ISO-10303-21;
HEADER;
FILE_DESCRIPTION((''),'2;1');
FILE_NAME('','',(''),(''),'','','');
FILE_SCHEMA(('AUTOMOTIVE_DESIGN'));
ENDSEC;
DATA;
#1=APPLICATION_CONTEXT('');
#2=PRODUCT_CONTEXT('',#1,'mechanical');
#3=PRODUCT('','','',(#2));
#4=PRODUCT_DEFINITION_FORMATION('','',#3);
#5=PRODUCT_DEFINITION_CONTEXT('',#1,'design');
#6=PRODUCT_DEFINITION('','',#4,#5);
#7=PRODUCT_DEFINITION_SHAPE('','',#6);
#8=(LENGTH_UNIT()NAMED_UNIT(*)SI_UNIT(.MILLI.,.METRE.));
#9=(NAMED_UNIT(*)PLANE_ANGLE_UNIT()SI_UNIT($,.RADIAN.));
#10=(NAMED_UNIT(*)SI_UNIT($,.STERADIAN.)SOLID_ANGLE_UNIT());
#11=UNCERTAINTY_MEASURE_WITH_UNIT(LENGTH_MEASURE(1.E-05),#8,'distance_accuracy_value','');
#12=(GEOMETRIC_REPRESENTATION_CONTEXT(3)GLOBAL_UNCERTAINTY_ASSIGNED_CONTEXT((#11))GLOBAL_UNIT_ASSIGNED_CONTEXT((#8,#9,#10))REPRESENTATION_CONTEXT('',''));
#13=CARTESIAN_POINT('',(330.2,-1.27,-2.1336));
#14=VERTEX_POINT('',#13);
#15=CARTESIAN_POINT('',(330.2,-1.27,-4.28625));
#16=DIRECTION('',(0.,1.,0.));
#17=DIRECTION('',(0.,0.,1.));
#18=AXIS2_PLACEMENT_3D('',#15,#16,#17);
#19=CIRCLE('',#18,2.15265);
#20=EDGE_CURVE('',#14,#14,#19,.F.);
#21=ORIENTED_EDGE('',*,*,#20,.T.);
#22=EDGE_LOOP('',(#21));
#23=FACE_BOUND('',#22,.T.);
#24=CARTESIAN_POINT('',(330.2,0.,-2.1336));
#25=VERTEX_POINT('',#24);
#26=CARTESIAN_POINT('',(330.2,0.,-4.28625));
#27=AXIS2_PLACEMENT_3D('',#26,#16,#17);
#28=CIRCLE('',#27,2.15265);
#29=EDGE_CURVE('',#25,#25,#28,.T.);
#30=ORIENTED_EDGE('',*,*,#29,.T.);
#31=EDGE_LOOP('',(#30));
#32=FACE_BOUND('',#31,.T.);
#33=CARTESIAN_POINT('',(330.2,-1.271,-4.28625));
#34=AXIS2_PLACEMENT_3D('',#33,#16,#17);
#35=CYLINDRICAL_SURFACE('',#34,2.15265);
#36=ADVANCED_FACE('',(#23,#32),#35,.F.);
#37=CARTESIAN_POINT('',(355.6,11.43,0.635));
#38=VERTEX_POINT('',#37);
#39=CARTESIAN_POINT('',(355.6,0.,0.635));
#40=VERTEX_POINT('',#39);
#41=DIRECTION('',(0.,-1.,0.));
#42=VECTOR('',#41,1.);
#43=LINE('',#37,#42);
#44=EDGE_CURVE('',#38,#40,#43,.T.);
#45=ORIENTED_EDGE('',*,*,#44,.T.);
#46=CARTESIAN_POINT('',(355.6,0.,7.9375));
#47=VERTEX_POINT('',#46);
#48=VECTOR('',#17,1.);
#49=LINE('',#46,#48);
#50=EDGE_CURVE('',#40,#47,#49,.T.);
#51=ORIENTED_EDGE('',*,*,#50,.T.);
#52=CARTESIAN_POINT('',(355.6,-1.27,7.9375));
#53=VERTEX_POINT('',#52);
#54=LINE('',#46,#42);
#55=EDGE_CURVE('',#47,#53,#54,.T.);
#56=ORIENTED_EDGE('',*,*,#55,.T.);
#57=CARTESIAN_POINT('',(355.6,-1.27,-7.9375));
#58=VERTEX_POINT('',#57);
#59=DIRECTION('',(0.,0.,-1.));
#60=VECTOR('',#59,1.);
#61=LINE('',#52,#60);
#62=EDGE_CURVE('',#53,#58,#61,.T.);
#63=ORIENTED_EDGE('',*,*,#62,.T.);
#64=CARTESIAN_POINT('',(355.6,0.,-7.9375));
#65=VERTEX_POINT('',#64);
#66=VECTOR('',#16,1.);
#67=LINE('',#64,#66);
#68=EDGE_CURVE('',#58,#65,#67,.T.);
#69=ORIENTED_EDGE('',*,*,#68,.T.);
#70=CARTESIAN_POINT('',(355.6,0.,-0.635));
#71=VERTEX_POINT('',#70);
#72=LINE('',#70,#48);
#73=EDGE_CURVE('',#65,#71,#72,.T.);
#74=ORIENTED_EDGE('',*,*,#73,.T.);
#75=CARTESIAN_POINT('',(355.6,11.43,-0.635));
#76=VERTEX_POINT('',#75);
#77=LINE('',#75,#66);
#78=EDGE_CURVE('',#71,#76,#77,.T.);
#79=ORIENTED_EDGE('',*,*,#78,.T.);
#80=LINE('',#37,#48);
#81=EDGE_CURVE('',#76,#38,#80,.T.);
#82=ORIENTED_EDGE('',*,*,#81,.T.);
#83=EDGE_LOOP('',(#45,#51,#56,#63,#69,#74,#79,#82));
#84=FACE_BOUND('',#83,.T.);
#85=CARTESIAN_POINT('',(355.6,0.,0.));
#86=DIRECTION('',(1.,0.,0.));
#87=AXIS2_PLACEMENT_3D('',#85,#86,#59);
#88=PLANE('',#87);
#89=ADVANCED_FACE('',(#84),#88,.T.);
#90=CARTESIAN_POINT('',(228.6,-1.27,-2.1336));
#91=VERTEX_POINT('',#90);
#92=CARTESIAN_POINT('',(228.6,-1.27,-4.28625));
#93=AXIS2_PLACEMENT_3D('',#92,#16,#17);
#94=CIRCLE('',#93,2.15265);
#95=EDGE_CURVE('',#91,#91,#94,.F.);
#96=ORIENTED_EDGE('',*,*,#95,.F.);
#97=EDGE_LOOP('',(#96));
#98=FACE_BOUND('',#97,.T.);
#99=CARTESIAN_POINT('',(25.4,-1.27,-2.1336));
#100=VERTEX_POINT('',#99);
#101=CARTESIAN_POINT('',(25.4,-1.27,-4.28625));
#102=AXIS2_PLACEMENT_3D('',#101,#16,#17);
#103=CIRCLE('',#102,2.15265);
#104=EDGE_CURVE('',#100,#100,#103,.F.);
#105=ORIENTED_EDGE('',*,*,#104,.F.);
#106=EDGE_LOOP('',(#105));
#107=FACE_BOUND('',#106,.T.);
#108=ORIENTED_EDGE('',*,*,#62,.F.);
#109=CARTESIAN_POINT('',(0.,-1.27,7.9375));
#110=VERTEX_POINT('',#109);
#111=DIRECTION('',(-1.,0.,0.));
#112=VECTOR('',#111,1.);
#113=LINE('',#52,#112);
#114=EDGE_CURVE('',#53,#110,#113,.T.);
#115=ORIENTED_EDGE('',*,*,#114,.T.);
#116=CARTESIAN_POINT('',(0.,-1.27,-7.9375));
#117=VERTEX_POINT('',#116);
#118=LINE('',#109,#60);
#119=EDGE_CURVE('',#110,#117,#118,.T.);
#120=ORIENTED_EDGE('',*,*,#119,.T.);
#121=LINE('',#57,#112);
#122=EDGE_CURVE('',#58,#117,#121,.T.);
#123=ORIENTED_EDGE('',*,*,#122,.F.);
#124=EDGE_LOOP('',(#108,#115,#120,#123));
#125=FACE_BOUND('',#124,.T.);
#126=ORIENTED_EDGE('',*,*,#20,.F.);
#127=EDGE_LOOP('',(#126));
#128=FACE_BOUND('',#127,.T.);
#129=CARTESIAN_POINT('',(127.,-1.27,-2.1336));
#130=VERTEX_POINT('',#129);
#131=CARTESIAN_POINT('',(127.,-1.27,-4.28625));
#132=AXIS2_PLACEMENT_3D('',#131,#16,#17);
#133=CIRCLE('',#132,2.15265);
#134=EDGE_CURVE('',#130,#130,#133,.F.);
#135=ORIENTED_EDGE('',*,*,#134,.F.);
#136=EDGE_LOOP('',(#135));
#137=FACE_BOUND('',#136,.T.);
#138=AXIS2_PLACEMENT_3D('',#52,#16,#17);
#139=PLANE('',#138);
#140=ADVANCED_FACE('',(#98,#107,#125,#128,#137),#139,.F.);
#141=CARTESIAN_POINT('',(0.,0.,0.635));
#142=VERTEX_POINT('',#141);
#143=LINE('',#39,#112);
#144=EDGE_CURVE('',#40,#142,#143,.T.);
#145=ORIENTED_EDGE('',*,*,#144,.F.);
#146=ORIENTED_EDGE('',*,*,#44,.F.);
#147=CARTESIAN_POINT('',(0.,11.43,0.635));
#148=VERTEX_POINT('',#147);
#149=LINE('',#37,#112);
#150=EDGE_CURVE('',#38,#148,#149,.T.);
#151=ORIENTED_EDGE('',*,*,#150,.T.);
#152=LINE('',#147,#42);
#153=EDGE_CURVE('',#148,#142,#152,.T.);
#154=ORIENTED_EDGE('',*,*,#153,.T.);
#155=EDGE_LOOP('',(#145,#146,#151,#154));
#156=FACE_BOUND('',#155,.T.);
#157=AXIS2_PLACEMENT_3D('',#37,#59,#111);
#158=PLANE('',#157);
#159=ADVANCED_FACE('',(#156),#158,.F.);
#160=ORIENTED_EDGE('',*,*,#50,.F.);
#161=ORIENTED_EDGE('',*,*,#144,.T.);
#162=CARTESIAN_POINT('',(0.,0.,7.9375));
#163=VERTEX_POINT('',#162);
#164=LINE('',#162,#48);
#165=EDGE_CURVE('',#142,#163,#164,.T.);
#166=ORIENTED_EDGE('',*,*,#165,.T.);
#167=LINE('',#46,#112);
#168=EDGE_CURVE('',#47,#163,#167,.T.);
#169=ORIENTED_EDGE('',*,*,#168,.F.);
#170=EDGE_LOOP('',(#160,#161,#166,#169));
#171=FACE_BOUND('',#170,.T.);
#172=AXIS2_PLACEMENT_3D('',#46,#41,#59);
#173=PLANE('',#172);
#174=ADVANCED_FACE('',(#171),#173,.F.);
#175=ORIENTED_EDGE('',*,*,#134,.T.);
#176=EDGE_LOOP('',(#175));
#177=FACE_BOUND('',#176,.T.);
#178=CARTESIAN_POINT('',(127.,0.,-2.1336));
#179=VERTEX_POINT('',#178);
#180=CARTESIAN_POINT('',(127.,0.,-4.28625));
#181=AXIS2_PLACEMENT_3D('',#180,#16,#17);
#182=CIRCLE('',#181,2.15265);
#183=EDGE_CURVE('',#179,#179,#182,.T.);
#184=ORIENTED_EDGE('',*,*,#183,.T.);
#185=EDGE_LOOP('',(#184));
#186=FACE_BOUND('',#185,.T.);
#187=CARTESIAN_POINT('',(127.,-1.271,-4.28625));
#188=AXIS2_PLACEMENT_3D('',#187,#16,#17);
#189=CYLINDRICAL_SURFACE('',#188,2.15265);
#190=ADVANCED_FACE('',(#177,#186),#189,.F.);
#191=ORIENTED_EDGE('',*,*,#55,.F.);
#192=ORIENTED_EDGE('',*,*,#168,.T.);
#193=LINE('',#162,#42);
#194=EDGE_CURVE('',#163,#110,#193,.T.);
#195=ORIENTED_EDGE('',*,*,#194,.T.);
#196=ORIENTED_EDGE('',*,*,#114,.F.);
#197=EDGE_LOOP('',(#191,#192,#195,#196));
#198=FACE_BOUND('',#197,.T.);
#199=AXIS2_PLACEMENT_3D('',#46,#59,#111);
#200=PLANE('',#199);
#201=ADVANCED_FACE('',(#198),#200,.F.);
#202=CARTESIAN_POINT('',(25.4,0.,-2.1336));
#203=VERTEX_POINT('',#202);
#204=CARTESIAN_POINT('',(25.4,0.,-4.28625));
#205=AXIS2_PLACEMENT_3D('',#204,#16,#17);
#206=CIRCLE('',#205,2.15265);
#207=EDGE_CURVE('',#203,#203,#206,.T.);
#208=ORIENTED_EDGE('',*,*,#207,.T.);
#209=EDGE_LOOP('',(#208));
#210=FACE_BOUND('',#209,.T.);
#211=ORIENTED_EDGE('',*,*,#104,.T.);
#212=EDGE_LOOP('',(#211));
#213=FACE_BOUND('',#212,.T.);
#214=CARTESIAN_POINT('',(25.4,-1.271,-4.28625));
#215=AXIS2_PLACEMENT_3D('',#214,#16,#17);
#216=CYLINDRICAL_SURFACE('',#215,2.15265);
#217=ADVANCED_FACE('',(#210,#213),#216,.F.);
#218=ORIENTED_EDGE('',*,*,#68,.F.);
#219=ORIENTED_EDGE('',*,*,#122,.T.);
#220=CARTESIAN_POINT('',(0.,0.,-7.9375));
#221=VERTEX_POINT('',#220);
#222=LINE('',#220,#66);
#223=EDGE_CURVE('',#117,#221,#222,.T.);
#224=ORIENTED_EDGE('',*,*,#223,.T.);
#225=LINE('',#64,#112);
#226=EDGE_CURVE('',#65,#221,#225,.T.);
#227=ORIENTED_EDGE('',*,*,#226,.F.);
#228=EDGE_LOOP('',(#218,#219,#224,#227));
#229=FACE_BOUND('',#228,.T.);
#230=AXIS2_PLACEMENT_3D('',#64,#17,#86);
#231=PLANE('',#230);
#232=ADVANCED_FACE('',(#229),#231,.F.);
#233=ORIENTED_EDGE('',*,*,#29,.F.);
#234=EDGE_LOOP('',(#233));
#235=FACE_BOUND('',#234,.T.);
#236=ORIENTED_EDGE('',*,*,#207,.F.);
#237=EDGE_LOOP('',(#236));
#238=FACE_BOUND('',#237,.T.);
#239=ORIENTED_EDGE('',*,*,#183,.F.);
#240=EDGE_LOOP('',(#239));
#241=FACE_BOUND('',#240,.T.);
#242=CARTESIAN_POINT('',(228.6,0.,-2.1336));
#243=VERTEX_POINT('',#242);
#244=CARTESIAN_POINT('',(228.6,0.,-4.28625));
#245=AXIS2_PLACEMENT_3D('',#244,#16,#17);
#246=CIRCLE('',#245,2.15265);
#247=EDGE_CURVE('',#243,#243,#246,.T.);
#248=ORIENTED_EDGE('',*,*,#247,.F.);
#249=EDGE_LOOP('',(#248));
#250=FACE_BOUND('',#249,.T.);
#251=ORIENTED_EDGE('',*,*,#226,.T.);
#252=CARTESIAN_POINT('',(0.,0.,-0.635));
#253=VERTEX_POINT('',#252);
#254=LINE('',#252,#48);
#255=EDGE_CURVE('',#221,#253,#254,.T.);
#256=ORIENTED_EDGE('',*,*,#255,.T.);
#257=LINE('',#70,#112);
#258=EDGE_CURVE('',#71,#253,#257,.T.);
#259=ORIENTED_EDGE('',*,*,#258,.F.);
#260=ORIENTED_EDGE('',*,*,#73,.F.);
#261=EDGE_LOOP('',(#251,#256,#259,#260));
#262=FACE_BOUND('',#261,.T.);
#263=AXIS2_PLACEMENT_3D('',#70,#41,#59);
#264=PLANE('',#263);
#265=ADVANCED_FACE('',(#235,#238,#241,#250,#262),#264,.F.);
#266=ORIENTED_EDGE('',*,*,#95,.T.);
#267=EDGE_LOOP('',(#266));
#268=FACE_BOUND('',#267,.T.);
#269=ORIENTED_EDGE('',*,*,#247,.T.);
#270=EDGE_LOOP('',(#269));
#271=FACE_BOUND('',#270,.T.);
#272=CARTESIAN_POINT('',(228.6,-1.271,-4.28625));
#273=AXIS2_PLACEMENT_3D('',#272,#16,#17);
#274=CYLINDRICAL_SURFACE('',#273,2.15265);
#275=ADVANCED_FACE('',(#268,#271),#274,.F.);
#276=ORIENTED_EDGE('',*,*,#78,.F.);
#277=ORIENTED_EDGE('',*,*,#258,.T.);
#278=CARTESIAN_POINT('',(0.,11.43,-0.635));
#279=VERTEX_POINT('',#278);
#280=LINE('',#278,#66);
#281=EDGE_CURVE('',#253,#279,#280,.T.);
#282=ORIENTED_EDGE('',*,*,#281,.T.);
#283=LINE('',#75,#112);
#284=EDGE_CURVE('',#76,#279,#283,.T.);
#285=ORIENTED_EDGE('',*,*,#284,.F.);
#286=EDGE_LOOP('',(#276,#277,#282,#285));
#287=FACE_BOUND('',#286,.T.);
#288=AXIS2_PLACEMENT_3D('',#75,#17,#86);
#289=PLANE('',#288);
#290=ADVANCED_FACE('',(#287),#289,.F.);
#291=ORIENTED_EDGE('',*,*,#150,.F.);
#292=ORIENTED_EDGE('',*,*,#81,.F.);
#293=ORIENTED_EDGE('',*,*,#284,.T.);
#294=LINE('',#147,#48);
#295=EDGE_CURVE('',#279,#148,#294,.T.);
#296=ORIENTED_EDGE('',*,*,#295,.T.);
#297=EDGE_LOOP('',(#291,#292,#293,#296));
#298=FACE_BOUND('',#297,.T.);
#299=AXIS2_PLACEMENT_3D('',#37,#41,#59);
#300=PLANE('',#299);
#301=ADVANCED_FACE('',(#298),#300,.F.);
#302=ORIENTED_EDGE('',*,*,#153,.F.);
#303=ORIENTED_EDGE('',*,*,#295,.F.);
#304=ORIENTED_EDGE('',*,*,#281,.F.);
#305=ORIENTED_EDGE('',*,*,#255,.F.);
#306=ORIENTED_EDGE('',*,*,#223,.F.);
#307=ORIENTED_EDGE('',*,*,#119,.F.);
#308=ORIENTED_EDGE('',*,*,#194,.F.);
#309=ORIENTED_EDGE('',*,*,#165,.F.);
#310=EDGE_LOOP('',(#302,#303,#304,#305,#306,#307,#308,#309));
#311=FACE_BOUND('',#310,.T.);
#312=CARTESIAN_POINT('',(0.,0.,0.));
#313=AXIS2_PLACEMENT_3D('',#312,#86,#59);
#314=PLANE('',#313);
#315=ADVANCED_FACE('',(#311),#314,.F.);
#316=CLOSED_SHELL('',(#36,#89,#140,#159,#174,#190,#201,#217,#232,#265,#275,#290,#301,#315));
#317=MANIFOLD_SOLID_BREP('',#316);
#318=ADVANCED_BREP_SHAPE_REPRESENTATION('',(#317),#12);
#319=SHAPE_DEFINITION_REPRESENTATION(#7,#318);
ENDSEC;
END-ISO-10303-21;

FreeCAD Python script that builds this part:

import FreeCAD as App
import Part
import Sketcher
Q = App.Units.Quantity


def add_polygon(sketch, points):
    """Adds a closed chain of lines whose ends are joined by coincident constraints."""
    first, n = sketch.GeometryCount, len(points)
    for a, b in zip(points, points[1:] + points[:1]):
        sketch.addGeometry(Part.LineSegment(App.Vector(*a, 0), App.Vector(*b, 0)), False)
    for i in range(n):
        sketch.addConstraint(Sketcher.Constraint("Coincident", first + i, 2, first + (i + 1) % n, 1))

doc = App.newDocument("Part")
body = doc.addObject("PartDesign::Body", "Body")

# Sketch on YZ plane
sketch1 = doc.addObject("Sketcher::SketchObject", "Sketch")
body.addObject(sketch1)
sketch1.AttachmentSupport = (doc.YZ_Plane, [""])
sketch1.MapMode = "FlatFace"
add_polygon(sketch1, [(0, -7.9375), (0, -0.635), (11.43, -0.635), (11.43, 0.635), (0, 0.635), (0, 7.9375), (-1.27, 7.9375), (-1.27, -7.9375)])  # lines 0-7
sketch1.addConstraint([
    Sketcher.Constraint("Vertical", 0),
    Sketcher.Constraint("Horizontal", 1),
    Sketcher.Constraint("Vertical", 2),
    Sketcher.Constraint("Horizontal", 3),
    Sketcher.Constraint("Vertical", 4),
    Sketcher.Constraint("Horizontal", 5),
    Sketcher.Constraint("Vertical", 6),
    Sketcher.Constraint("Horizontal", 7),
    Sketcher.Constraint("Symmetric", 0, 2, 3, 2, -1, 1),
    Sketcher.Constraint("Symmetric", 4, 2, 7, 2, -1),
    Sketcher.Constraint("Equal", 7, 2),
    Sketcher.Constraint("DistanceX", 1, 1, 1, 2, Q("0.45 in")),
    Sketcher.Constraint("DistanceX", 5, 2, 5, 1, Q("0.05 in")),
    Sketcher.Constraint("DistanceY", 6, 2, 6, 1, Q("0.625 in")),
])
pad1 = doc.addObject("PartDesign::Pad", "Pad")
body.addObject(pad1)
pad1.Profile = sketch1
pad1.Length = Q("14 in")

# Sketch on XZ plane
sketch2 = doc.addObject("Sketcher::SketchObject", "Sketch001")
body.addObject(sketch2)
sketch2.AttachmentSupport = (doc.XZ_Plane, [""])
sketch2.MapMode = "FlatFace"
sketch2.addGeometry(Part.Circle(App.Vector(25.4, -4.28625, 0), App.Vector(0, 0, 1), 2.15265), False)
sketch2.addConstraint([
    Sketcher.Constraint("DistanceX", -1, 1, 0, 3, Q("1 in")),
    Sketcher.Constraint("Diameter", 0, Q("0.1695 in")),
    Sketcher.Constraint("DistanceY", 0, 3, -1, 1, Q("4.28625 mm")),
])
pocket1 = doc.addObject("PartDesign::Pocket", "Pocket")
body.addObject(pocket1)
pocket1.Profile = sketch2
pocket1.Type = "UpToFirst"
pocket1.Reversed = True

# Sketch on XZ plane
sketch3 = doc.addObject("Sketcher::SketchObject", "Sketch002")
body.addObject(sketch3)
sketch3.AttachmentSupport = (doc.XZ_Plane, [""])
sketch3.MapMode = "FlatFace"
sketch3.addGeometry(Part.Circle(App.Vector(127, -4.28625, 0), App.Vector(0, 0, 1), 2.15265), False)
sketch3.addConstraint([
    Sketcher.Constraint("DistanceX", -1, 1, 0, 3, Q("5 in")),
    Sketcher.Constraint("Diameter", 0, Q("0.1695 in")),
    Sketcher.Constraint("DistanceY", 0, 3, -1, 1, Q("4.28625 mm")),
])
pocket2 = doc.addObject("PartDesign::Pocket", "Pocket001")
body.addObject(pocket2)
pocket2.Profile = sketch3
pocket2.Type = "UpToFirst"
pocket2.Reversed = True

# Sketch on XZ plane
sketch4 = doc.addObject("Sketcher::SketchObject", "Sketch003")
body.addObject(sketch4)
sketch4.AttachmentSupport = (doc.XZ_Plane, [""])
sketch4.MapMode = "FlatFace"
sketch4.addGeometry(Part.Circle(App.Vector(228.6, -4.28625, 0), App.Vector(0, 0, 1), 2.15265), False)
sketch4.addConstraint([
    Sketcher.Constraint("DistanceX", -1, 1, 0, 3, Q("9 in")),
    Sketcher.Constraint("Diameter", 0, Q("0.1695 in")),
    Sketcher.Constraint("DistanceY", 0, 3, -1, 1, Q("4.28625 mm")),
])
pocket3 = doc.addObject("PartDesign::Pocket", "Pocket002")
body.addObject(pocket3)
pocket3.Profile = sketch4
pocket3.Type = "UpToFirst"
pocket3.Reversed = True

# Sketch on XZ plane
sketch5 = doc.addObject("Sketcher::SketchObject", "Sketch004")
body.addObject(sketch5)
sketch5.AttachmentSupport = (doc.XZ_Plane, [""])
sketch5.MapMode = "FlatFace"
sketch5.addGeometry(Part.Circle(App.Vector(330.2, -4.28625, 0), App.Vector(0, 0, 1), 2.15265), False)
sketch5.addConstraint([
    Sketcher.Constraint("DistanceX", -1, 1, 0, 3, Q("13 in")),
    Sketcher.Constraint("Diameter", 0, Q("0.1695 in")),
    Sketcher.Constraint("DistanceY", 0, 3, -1, 1, Q("4.28625 mm")),
])
pocket4 = doc.addObject("PartDesign::Pocket", "Pocket003")
body.addObject(pocket4)
pocket4.Profile = sketch5
pocket4.Type = "UpToFirst"
pocket4.Reversed = True

doc.recompute()
